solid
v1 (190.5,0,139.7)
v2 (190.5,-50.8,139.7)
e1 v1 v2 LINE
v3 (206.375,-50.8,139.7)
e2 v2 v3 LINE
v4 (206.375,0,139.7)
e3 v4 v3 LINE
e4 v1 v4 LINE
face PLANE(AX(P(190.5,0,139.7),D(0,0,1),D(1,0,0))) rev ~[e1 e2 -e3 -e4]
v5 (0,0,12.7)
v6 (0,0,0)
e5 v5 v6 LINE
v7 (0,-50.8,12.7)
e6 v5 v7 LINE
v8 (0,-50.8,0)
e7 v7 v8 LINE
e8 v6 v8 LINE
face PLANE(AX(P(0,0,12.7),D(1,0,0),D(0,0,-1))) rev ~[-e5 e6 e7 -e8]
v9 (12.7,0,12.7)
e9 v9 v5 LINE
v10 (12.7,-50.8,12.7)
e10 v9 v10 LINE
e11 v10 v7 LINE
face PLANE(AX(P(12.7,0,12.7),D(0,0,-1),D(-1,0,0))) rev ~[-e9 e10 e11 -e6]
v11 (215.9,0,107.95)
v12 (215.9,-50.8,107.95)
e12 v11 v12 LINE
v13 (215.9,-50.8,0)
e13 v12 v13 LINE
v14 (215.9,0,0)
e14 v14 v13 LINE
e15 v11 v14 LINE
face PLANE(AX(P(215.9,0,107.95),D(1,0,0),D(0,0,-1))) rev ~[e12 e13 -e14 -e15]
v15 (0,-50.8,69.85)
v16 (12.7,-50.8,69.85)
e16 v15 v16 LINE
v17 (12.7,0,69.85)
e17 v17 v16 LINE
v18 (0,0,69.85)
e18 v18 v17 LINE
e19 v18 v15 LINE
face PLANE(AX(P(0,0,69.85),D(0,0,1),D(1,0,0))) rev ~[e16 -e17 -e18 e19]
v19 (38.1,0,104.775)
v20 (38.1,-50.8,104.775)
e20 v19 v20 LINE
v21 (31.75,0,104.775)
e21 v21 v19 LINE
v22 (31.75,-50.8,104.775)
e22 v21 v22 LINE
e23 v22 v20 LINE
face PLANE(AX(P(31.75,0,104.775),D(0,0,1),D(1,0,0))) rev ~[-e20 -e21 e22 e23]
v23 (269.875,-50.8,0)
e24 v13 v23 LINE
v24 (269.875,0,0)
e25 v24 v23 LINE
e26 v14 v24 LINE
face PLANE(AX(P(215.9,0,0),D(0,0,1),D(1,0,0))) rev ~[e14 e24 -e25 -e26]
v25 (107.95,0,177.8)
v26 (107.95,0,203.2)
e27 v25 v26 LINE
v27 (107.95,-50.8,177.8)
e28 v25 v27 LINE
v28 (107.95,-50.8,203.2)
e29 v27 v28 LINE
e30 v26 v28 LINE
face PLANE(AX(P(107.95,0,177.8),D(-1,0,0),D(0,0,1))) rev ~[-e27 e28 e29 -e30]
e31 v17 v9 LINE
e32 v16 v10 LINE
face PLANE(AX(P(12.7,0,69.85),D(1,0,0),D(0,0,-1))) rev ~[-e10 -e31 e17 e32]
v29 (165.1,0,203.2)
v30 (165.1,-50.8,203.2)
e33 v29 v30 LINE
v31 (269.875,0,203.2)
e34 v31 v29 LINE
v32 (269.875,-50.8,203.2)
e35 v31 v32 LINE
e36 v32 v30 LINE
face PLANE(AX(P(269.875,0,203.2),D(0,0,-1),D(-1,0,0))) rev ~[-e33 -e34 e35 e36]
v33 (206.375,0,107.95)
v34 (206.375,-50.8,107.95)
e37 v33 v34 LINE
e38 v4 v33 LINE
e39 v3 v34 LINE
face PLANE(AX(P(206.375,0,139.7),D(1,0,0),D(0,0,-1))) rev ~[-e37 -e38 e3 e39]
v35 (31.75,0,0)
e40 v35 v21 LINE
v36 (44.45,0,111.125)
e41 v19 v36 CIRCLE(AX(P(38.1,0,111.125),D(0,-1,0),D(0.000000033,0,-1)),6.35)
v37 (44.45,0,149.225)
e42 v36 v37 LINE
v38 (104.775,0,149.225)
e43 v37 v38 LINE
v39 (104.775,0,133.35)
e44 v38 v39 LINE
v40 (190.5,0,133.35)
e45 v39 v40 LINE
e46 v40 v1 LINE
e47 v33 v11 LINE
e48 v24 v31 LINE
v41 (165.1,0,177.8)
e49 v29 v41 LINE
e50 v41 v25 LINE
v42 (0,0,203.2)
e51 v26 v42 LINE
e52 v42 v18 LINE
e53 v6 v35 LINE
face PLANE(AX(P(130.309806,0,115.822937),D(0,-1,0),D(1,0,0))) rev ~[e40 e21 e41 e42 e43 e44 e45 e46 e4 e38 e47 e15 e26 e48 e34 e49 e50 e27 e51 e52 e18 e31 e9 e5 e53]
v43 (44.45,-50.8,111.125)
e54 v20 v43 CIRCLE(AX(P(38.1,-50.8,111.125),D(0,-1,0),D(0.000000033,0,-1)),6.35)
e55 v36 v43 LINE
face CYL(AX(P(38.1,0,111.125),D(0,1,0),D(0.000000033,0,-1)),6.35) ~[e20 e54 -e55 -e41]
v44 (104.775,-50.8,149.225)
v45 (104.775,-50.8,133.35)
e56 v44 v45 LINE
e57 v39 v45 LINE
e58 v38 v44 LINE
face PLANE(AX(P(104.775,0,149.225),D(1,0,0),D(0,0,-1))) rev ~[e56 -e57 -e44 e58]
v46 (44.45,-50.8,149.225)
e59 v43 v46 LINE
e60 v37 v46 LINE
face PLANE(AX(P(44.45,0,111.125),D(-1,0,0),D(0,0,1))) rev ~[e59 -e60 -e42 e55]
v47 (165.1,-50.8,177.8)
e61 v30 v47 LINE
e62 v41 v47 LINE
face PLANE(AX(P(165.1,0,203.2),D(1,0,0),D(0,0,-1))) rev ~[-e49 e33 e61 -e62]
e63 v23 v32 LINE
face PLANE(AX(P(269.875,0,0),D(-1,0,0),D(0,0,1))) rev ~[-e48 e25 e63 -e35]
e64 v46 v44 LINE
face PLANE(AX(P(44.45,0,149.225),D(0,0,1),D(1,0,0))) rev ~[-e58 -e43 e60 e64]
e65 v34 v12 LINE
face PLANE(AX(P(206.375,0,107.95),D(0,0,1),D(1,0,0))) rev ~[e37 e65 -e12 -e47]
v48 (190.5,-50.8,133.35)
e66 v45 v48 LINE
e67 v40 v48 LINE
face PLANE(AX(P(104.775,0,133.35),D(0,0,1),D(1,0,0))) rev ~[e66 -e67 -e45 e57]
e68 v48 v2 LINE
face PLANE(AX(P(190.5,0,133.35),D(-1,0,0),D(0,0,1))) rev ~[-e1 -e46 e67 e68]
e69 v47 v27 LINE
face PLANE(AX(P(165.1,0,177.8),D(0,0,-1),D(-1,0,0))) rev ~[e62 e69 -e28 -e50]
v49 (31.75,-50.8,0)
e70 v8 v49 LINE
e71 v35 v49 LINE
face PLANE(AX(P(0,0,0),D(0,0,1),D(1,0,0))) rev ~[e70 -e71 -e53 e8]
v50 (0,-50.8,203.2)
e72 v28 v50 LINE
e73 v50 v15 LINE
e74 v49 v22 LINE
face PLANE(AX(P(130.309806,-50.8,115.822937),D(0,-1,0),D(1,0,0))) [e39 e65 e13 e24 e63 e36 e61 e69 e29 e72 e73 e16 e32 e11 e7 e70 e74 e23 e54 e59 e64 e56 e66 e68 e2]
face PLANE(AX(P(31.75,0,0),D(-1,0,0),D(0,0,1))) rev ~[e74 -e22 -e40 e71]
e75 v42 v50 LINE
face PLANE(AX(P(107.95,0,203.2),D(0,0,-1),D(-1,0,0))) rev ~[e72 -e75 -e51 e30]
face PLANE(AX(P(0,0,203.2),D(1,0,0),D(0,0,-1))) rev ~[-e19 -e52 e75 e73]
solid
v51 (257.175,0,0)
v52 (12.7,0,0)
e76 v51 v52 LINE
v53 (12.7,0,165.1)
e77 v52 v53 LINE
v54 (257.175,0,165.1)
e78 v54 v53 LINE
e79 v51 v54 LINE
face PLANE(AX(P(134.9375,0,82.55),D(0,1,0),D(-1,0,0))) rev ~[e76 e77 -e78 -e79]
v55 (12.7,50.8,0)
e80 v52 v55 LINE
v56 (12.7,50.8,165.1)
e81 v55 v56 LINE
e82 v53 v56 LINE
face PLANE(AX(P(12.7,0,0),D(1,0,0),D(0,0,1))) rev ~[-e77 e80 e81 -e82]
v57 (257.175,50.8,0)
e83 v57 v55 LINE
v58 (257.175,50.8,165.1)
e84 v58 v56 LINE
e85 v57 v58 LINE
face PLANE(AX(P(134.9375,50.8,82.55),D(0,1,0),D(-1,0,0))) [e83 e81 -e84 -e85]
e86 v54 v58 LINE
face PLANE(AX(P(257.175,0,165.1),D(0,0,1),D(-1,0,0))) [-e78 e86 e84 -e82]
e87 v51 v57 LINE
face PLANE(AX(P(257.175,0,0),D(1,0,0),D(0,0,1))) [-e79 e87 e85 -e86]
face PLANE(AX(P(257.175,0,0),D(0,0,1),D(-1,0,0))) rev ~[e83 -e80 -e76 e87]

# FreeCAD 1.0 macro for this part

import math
import FreeCAD as App
import Part
import Sketcher

V = App.Vector
Q = App.Units.Quantity

doc = App.newDocument("Part")
body = doc.addObject("PartDesign::Body", "Body")

# Sketch on XZ plane
sketch1 = body.newObject("Sketcher::SketchObject", "Sketch")
sketch1.AttachmentSupport = (doc.getObject("XZ_Plane"), [""])
sketch1.MapMode = "FlatFace"
sketch1.addGeometry([
    Part.LineSegment(V(0, 13, 0), V(0, 0, 0)),  # 0
    Part.LineSegment(V(0, 0, 0), V(32, 0, 0)),  # 1
    Part.LineSegment(V(32, 0, 0), V(32, 105, 0)),  # 2
    Part.LineSegment(V(32, 105, 0), V(38, 105, 0)),  # 3
    Part.ArcOfCircle(Part.Circle(V(38, 111, 0), V(0, 0, 1), 6), math.radians(-90), math.radians(0)),  # 4
    Part.LineSegment(V(44, 111, 0), V(44, 149, 0)),  # 5
    Part.LineSegment(V(44, 149, 0), V(105, 149, 0)),  # 6
    Part.LineSegment(V(105, 149, 0), V(105, 133, 0)),  # 7
    Part.LineSegment(V(105, 133, 0), V(190, 133, 0)),  # 8
    Part.LineSegment(V(190, 133, 0), V(190, 140, 0)),  # 9
    Part.LineSegment(V(190, 140, 0), V(206, 140, 0)),  # 10
    Part.LineSegment(V(206, 140, 0), V(206, 108, 0)),  # 11
    Part.LineSegment(V(206, 108, 0), V(216, 108, 0)),  # 12
    Part.LineSegment(V(216, 108, 0), V(216, 0, 0)),  # 13
    Part.LineSegment(V(216, 0, 0), V(270, 0, 0)),  # 14
    Part.LineSegment(V(270, 0, 0), V(270, 203, 0)),  # 15
    Part.LineSegment(V(270, 203, 0), V(165, 203, 0)),  # 16
    Part.LineSegment(V(165, 203, 0), V(165, 178, 0)),  # 17
    Part.LineSegment(V(165, 178, 0), V(108, 178, 0)),  # 18
    Part.LineSegment(V(108, 178, 0), V(108, 203, 0)),  # 19
    Part.LineSegment(V(108, 203, 0), V(0, 203, 0)),  # 20
    Part.LineSegment(V(0, 203, 0), V(0, 70, 0)),  # 21
    Part.LineSegment(V(0, 70, 0), V(13, 70, 0)),  # 22
    Part.LineSegment(V(13, 70, 0), V(13, 13, 0)),  # 23
    Part.LineSegment(V(13, 13, 0), V(0, 13, 0)),  # 24
], False)
sketch1.addConstraint([
    Sketcher.Constraint("Coincident", 0, 2, 1, 1),
    Sketcher.Constraint("Coincident", 1, 2, 2, 1),
    Sketcher.Constraint("Coincident", 2, 2, 3, 1),
    Sketcher.Constraint("Tangent", 3, 2, 4, 1),
    Sketcher.Constraint("Tangent", 4, 2, 5, 1),
    Sketcher.Constraint("Coincident", 5, 2, 6, 1),
    Sketcher.Constraint("Coincident", 6, 2, 7, 1),
    Sketcher.Constraint("Coincident", 7, 2, 8, 1),
    Sketcher.Constraint("Coincident", 8, 2, 9, 1),
    Sketcher.Constraint("Coincident", 9, 2, 10, 1),
    Sketcher.Constraint("Coincident", 10, 2, 11, 1),
    Sketcher.Constraint("Coincident", 11, 2, 12, 1),
    Sketcher.Constraint("Coincident", 12, 2, 13, 1),
    Sketcher.Constraint("Coincident", 13, 2, 14, 1),
    Sketcher.Constraint("Coincident", 14, 2, 15, 1),
    Sketcher.Constraint("Coincident", 15, 2, 16, 1),
    Sketcher.Constraint("Coincident", 16, 2, 17, 1),
    Sketcher.Constraint("Coincident", 17, 2, 18, 1),
    Sketcher.Constraint("Coincident", 18, 2, 19, 1),
    Sketcher.Constraint("Coincident", 19, 2, 20, 1),
    Sketcher.Constraint("Coincident", 20, 2, 21, 1),
    Sketcher.Constraint("Coincident", 21, 2, 22, 1),
    Sketcher.Constraint("Coincident", 22, 2, 23, 1),
    Sketcher.Constraint("Coincident", 23, 2, 24, 1),
    Sketcher.Constraint("Coincident", 24, 2, 0, 1),
    Sketcher.Constraint("Vertical", 0),
    Sketcher.Constraint("Horizontal", 1),
    Sketcher.Constraint("Vertical", 2),
    Sketcher.Constraint("Horizontal", 3),
    Sketcher.Constraint("Vertical", 5),
    Sketcher.Constraint("Horizontal", 6),
    Sketcher.Constraint("Vertical", 7),
    Sketcher.Constraint("Horizontal", 8),
    Sketcher.Constraint("Vertical", 9),
    Sketcher.Constraint("Horizontal", 10),
    Sketcher.Constraint("Vertical", 11),
    Sketcher.Constraint("Horizontal", 12),
    Sketcher.Constraint("Vertical", 13),
    Sketcher.Constraint("Horizontal", 14),
    Sketcher.Constraint("Vertical", 15),
    Sketcher.Constraint("Horizontal", 16),
    Sketcher.Constraint("Vertical", 17),
    Sketcher.Constraint("Horizontal", 18),
    Sketcher.Constraint("Vertical", 19),
    Sketcher.Constraint("Horizontal", 20),
    Sketcher.Constraint("Vertical", 21),
    Sketcher.Constraint("Horizontal", 22),
    Sketcher.Constraint("Vertical", 23),
    Sketcher.Constraint("Horizontal", 24),
    Sketcher.Constraint("Coincident", 0, 2, -1, 1),
    Sketcher.Constraint("PointOnObject", 13, 2, -1),
    Sketcher.Constraint("PointOnObject", 20, 2, -2),
    Sketcher.Constraint("Horizontal", 16, 2, 19, 2),
    Sketcher.Constraint("Equal", 24, 0),
    Sketcher.Constraint("Equal", 16, 2),
    Sketcher.Constraint("Equal", 10, 7),
    Sketcher.Constraint("Equal", 3, 9),
    Sketcher.Constraint("Equal", 1, 11),
    Sketcher.Constraint("Equal", 20, 13),
    Sketcher.Constraint("Equal", 18, 23),
    Sketcher.Constraint("DistanceY", 15, 1, 15, 2, Q("8 in")),
    Sketcher.Constraint("DistanceY", 17, 2, 17, 1, Q("1 in")),
    Sketcher.Constraint("Radius", 4, Q("0.25 in")),
    Sketcher.Constraint("DistanceX", 22, 1, 22, 2, Q("0.5 in")),
    Sketcher.Constraint("DistanceY", 5, 1, 5, 2, Q("1.5 in")),
    Sketcher.Constraint("DistanceX", 4, 3, 8, 2, Q("6 in")),
    Sketcher.Constraint("DistanceX", 7, 2, 10, 2, Q("4 in")),
    Sketcher.Constraint("DistanceY", 11, 2, 8, 2, Q("1 in")),
    Sketcher.Constraint("DistanceX", 8, 2, 12, 2, Q("1 in")),
    Sketcher.Constraint("DistanceX", 16, 2, 9, 2, Q("1 in")),
    Sketcher.Constraint("DistanceX", 22, 2, 3, 2, Q("1 in")),
    Sketcher.Constraint("DistanceX", 18, 2, 18, 1, Q("2.25 in")),
    Sketcher.Constraint("DistanceX", 6, 1, 6, 2, Q("2.375 in")),
])
pad1 = body.newObject("PartDesign::Pad", "Pad")
pad1.Profile = sketch1
pad1.Length = Q("2 in")
body2 = doc.addObject("PartDesign::Body", "Body001")

# Sketch on XZ plane
sketch2 = body2.newObject("Sketcher::SketchObject", "Sketch001")
sketch2.AttachmentSupport = (doc.getObject("XZ_Plane001"), [""])
sketch2.MapMode = "FlatFace"
sketch2.addGeometry([
    Part.LineSegment(V(257, 165, 0), V(257, 0, 0)),
    Part.LineSegment(V(257, 0, 0), V(13, 0, 0)),
    Part.LineSegment(V(13, 0, 0), V(13, 165, 0)),
    Part.LineSegment(V(13, 165, 0), V(257, 165, 0)),
], False)
sketch2.addConstraint([
    Sketcher.Constraint("Coincident", 0, 2, 1, 1),
    Sketcher.Constraint("Coincident", 1, 2, 2, 1),
    Sketcher.Constraint("Coincident", 2, 2, 3, 1),
    Sketcher.Constraint("Coincident", 3, 2, 0, 1),
    Sketcher.Constraint("Vertical", 0),
    Sketcher.Constraint("Horizontal", 1),
    Sketcher.Constraint("Vertical", 2),
    Sketcher.Constraint("Horizontal", 3),
    Sketcher.Constraint("PointOnObject", 0, 2, -1),
    Sketcher.Constraint("DistanceY", 0, 2, 0, 1, Q("6.5 in")),
    Sketcher.Constraint("DistanceX", -1, 1, 1, 2, Q("0.5 in")),
    Sketcher.Constraint("DistanceX", 1, 2, 1, 1, Q("9.625 in")),
])
pad2 = body2.newObject("PartDesign::Pad", "Pad001")
pad2.Profile = sketch2
pad2.Length = Q("2 in")
pad2.Reversed = True

doc.recompute()
